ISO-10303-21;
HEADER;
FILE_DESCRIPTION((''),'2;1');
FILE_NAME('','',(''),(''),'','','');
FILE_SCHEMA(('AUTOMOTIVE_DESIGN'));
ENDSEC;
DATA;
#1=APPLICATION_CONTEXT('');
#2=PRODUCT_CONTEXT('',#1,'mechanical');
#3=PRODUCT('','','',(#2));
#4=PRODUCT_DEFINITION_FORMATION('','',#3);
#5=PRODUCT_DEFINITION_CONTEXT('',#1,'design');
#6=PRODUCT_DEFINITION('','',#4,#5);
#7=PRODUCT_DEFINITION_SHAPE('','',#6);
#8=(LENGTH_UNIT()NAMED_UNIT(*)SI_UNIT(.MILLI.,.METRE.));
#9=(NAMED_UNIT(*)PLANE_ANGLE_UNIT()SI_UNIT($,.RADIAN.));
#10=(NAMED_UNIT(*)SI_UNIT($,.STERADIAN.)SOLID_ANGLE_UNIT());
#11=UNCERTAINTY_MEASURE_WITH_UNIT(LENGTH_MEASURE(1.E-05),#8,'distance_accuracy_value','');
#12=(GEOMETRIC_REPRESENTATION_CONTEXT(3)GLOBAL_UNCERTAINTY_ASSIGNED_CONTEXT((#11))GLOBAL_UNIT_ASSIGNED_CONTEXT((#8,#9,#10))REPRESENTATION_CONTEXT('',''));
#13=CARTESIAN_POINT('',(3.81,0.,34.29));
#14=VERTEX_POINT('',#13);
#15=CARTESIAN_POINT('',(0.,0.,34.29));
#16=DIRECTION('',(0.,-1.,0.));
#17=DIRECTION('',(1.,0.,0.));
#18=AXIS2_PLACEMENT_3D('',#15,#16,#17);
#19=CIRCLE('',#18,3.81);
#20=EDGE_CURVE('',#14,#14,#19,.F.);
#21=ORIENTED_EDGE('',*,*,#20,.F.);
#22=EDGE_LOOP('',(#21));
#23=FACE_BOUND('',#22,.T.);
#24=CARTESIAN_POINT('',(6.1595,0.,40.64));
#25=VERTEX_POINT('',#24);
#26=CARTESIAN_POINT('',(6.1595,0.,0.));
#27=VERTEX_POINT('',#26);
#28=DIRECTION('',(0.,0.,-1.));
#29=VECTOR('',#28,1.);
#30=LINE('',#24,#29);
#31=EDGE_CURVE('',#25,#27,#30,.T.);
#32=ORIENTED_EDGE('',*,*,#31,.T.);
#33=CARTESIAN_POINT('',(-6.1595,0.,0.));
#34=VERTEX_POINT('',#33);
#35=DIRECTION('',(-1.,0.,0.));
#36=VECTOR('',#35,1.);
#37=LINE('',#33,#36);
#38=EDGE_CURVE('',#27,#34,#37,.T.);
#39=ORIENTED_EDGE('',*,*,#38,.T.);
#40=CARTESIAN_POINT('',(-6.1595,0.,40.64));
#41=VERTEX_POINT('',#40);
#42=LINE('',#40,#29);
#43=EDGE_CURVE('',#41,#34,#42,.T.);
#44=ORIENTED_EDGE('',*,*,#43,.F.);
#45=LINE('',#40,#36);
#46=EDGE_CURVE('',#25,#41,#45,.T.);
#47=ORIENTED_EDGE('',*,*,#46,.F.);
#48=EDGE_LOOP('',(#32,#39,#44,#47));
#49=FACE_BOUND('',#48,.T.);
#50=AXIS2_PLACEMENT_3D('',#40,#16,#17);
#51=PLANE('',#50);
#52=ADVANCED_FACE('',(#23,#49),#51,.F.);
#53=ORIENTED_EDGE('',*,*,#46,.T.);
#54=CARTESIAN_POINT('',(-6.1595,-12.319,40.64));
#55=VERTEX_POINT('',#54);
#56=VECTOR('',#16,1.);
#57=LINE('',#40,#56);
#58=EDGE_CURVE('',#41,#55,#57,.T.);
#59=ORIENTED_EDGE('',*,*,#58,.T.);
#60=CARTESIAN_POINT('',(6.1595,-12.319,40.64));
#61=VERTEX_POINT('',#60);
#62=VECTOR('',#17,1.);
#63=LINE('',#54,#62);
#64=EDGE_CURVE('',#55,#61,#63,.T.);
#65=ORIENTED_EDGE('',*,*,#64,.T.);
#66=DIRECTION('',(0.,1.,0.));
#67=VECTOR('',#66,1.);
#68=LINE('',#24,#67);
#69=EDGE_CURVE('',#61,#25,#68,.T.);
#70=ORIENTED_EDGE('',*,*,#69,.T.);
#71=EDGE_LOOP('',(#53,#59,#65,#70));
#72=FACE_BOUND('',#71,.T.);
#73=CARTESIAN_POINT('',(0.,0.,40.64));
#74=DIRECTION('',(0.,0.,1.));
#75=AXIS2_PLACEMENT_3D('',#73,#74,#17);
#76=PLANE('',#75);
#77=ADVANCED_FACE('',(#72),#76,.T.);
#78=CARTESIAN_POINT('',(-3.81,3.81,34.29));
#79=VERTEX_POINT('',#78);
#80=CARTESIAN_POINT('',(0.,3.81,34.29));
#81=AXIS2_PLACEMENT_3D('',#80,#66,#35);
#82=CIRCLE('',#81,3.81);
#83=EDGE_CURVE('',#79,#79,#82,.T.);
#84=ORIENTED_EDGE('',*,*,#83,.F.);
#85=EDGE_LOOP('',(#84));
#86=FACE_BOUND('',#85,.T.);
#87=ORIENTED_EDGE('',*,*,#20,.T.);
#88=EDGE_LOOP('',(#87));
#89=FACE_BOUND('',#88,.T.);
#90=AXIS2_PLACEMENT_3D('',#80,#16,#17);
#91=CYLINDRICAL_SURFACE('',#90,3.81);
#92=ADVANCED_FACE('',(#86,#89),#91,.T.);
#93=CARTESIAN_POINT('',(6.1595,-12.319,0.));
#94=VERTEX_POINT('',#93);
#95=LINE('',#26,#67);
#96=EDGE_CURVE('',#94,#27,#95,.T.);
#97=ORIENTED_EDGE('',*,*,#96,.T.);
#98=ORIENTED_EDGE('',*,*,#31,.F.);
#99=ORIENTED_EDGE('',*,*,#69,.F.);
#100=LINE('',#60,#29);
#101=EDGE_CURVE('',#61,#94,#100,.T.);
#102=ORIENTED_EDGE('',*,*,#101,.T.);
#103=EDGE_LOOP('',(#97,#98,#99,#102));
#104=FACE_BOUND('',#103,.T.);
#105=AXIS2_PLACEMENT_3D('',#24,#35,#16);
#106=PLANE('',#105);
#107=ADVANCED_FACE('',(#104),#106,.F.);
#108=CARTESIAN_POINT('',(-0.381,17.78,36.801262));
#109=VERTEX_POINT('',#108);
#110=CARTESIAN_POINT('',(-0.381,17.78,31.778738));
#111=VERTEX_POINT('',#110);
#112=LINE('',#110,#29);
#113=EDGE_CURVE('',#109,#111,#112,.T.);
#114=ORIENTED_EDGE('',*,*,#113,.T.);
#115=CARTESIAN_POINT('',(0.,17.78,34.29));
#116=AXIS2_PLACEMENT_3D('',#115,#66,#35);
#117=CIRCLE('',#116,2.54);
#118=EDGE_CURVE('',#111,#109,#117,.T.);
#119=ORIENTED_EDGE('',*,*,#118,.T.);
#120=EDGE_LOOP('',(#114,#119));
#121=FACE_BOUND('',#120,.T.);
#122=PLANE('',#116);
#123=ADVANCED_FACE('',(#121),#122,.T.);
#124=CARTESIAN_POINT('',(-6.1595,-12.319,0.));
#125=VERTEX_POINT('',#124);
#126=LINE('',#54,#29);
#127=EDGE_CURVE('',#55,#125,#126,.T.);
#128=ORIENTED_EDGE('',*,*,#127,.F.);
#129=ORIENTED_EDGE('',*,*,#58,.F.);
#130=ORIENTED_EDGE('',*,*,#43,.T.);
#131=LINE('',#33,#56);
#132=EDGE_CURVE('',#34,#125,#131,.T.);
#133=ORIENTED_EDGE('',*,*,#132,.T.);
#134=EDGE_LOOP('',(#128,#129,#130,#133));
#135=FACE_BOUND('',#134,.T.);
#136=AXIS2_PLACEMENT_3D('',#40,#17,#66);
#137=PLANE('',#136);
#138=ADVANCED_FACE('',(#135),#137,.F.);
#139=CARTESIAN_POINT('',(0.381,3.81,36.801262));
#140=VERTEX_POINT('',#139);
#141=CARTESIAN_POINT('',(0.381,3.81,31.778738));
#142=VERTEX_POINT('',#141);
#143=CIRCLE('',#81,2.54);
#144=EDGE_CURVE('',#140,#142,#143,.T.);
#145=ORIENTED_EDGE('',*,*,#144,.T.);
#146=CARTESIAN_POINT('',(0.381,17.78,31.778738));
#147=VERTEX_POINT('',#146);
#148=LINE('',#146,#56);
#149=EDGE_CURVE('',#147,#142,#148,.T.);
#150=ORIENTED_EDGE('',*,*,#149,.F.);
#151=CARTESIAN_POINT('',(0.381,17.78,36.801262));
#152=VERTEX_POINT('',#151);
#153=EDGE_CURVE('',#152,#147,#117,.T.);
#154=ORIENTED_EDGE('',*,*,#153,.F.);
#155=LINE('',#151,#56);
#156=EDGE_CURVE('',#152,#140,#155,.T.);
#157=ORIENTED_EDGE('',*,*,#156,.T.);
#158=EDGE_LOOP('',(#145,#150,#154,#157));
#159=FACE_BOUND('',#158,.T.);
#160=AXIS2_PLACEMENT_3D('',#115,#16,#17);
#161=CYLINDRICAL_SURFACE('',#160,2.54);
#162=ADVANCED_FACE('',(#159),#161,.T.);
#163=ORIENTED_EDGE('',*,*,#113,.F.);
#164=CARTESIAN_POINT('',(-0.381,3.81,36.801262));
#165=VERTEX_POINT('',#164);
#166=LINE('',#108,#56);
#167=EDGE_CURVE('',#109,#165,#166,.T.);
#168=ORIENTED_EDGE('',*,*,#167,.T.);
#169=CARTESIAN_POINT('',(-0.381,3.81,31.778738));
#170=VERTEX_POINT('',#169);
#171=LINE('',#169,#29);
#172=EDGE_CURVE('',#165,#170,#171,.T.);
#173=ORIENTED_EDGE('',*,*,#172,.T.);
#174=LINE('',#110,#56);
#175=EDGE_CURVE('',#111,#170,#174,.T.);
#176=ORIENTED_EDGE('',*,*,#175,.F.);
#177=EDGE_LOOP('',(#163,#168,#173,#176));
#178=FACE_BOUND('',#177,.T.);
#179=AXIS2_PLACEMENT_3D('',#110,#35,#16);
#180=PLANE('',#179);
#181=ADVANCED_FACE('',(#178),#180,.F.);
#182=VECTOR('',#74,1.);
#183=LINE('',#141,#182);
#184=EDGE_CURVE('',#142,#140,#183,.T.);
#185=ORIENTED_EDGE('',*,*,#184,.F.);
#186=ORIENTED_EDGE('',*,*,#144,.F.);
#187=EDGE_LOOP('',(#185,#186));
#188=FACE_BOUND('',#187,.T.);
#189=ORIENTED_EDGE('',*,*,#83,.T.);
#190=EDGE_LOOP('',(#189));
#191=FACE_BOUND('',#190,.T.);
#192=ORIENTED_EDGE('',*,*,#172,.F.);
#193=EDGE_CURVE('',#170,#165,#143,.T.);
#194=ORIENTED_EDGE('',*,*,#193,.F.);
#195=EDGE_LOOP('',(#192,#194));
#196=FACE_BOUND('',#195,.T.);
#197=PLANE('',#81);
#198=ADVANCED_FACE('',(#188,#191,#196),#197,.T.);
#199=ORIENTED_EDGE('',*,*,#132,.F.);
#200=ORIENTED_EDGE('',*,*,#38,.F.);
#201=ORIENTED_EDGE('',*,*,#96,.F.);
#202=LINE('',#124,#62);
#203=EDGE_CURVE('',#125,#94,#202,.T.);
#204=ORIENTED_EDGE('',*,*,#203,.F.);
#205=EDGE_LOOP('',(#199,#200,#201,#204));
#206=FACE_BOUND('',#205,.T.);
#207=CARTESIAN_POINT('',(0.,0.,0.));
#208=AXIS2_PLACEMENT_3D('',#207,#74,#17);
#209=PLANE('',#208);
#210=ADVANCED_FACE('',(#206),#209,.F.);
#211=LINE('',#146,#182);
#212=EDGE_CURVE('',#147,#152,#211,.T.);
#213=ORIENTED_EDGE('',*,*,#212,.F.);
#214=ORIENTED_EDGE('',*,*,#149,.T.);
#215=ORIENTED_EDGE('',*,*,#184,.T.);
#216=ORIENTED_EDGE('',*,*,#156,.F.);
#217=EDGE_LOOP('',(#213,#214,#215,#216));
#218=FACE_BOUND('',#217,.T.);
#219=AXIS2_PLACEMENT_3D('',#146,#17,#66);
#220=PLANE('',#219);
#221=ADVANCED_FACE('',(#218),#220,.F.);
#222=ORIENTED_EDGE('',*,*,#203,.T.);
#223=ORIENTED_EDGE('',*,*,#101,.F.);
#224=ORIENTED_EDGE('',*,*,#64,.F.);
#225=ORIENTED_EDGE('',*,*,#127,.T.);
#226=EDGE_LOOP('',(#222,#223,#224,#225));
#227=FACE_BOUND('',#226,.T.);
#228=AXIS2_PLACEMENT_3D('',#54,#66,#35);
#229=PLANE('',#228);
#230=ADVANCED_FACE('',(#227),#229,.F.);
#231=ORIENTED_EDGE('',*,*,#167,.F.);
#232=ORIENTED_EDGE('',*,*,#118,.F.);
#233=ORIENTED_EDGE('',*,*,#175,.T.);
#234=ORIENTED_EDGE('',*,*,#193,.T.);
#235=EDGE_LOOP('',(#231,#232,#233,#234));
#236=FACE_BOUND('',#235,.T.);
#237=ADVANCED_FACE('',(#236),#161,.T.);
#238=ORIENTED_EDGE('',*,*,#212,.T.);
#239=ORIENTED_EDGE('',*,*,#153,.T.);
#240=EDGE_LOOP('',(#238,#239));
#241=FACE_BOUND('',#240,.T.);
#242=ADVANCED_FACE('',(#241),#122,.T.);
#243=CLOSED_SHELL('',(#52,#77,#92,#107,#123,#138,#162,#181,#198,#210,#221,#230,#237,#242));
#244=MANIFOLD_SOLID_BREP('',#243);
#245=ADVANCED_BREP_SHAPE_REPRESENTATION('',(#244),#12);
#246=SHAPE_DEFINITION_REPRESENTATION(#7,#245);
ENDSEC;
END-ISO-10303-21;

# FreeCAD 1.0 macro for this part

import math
import FreeCAD as App
import Part
import Sketcher

V = App.Vector
Q = App.Units.Quantity

doc = App.newDocument("Part")
params = doc.addObject("Spreadsheet::Sheet", "Params")
for row, (alias, value) in enumerate([
    ("sketch1_width", "0.485 in"),
    ("pad1_length", "1.6 in"),
    ("sketch2_radius", "0.1 in"),
    ("pad2_length", "0.7 in"),
    ("sketch3_diameter", "0.3 in"),
    ("pad3_length", "0.15 in"),
], start=1):
    params.set(f"A{row}", alias)
    params.set(f"B{row}", "=" + value)
    params.setAlias(f"B{row}", alias)

body = doc.addObject("PartDesign::Body", "Body")

# Sketch on XY plane
sketch1 = doc.addObject("Sketcher::SketchObject", "Sketch")
body.addObject(sketch1)
sketch1.AttachmentSupport = (doc.XY_Plane, [""])
sketch1.MapMode = "FlatFace"
sketch1.addGeometry([
    Part.LineSegment(V(-6, 0, 0), V(-6, -12, 0)),
    Part.LineSegment(V(-6, -12, 0), V(6, -12, 0)),
    Part.LineSegment(V(6, -12, 0), V(6, 0, 0)),
    Part.LineSegment(V(6, 0, 0), V(-6, 0, 0)),
], False)
sketch1.addConstraint([
    Sketcher.Constraint("Coincident", 0, 2, 1, 1),
    Sketcher.Constraint("Coincident", 1, 2, 2, 1),
    Sketcher.Constraint("Coincident", 2, 2, 3, 1),
    Sketcher.Constraint("Coincident", 3, 2, 0, 1),
    Sketcher.Constraint("Vertical", 0),
    Sketcher.Constraint("Horizontal", 1),
    Sketcher.Constraint("Vertical", 2),
    Sketcher.Constraint("Horizontal", 3),
    Sketcher.Constraint("Symmetric", 2, 2, 3, 2, -1, 1),
    Sketcher.Constraint("Equal", 3, 0),
    Sketcher.Constraint("DistanceX", 1, 1, 1, 2, Q("0.485 in")),
])
sketch1.setExpression("Constraints[10]", "Params.sketch1_width")
pad1 = doc.addObject("PartDesign::Pad", "Pad")
body.addObject(pad1)
pad1.Profile = sketch1
pad1.setExpression("Length", "Params.pad1_length")

# Sketch on XZ plane
sketch2 = doc.addObject("Sketcher::SketchObject", "Sketch001")
body.addObject(sketch2)
sketch2.AttachmentSupport = (doc.XZ_Plane, [""])
sketch2.MapMode = "FlatFace"
sketch2.addGeometry([
    Part.LineSegment(V(-0.4, 36.8, 0), V(-0.4, 31.8, 0)),
    Part.ArcOfCircle(Part.Circle(V(0, 34.3, 0), V(0, 0, 1), 2.5), math.radians(99), math.radians(261)),
    Part.LineSegment(V(0.4, 31.8, 0), V(0.4, 36.8, 0)),
    Part.ArcOfCircle(Part.Circle(V(0, 34.3, 0), V(0, 0, 1), 2.5), math.radians(-81), math.radians(81)),
], False)
sketch2.addConstraint([
    Sketcher.Constraint("Coincident", 0, 1, 1, 1),
    Sketcher.Constraint("Coincident", 1, 2, 0, 2),
    Sketcher.Constraint("Coincident", 2, 1, 3, 1),
    Sketcher.Constraint("Coincident", 3, 2, 2, 2),
    Sketcher.Constraint("Vertical", 0),
    Sketcher.Constraint("Vertical", 2),
    Sketcher.Constraint("Coincident", 3, 3, 1, 3),
    Sketcher.Constraint("Equal", 1, 3),
    Sketcher.Constraint("Symmetric", 1, 2, 2, 1, -2),
    Sketcher.Constraint("Radius", 1, Q("0.1 in")),
    Sketcher.Constraint("DistanceY", -1, 1, 1, 3, Q("1.35 in")),
    Sketcher.Constraint("DistanceX", 1, 2, 2, 1, Q("0.03 in")),
])
sketch2.setExpression("Constraints[9]", "Params.sketch2_radius")
pad2 = doc.addObject("PartDesign::Pad", "Pad001")
body.addObject(pad2)
pad2.Profile = sketch2
pad2.setExpression("Length", "Params.pad2_length")
pad2.Reversed = True

# Sketch on XZ plane
sketch3 = doc.addObject("Sketcher::SketchObject", "Sketch002")
body.addObject(sketch3)
sketch3.AttachmentSupport = (doc.XZ_Plane, [""])
sketch3.MapMode = "FlatFace"
sketch3.addGeometry(Part.Circle(V(0, 34.3, 0), V(0, 0, 1), 3.8), False)
sketch3.addConstraint([
    Sketcher.Constraint("PointOnObject", 0, 3, -2),
    Sketcher.Constraint("Diameter", 0, Q("0.3 in")),
    Sketcher.Constraint("DistanceY", -1, 1, 0, 3, Q("1.35 in")),
])
sketch3.setExpression("Constraints[1]", "Params.sketch3_diameter")
pad3 = doc.addObject("PartDesign::Pad", "Pad002")
body.addObject(pad3)
pad3.Profile = sketch3
pad3.setExpression("Length", "Params.pad3_length")
pad3.Reversed = True

doc.recompute()
